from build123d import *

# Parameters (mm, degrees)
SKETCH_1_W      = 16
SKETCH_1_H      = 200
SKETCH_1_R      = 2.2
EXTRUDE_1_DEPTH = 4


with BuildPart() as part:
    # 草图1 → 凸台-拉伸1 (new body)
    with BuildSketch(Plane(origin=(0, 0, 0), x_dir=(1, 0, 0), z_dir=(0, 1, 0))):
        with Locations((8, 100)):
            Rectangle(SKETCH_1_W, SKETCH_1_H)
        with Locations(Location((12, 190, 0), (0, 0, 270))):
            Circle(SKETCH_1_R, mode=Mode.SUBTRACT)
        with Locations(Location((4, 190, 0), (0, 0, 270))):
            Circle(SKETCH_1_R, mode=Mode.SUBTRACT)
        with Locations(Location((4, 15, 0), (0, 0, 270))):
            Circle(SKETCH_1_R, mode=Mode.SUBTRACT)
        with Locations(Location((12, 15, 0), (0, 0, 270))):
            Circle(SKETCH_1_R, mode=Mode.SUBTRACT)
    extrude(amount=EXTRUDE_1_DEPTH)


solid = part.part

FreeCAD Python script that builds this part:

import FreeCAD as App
import Part
import Sketcher

V = App.Vector
Q = App.Units.Quantity


def add_polygon(sketch, points):
    """Adds a closed chain of lines whose ends are joined by coincident constraints."""
    first, n = sketch.GeometryCount, len(points)
    for a, b in zip(points, points[1:] + points[:1]):
        sketch.addGeometry(Part.LineSegment(App.Vector(*a, 0), App.Vector(*b, 0)), False)
    for i in range(n):
        sketch.addConstraint(Sketcher.Constraint("Coincident", first + i, 2, first + (i + 1) % n, 1))

doc = App.newDocument("Part")
body = doc.addObject("PartDesign::Body", "Body")

# Sketch on XZ plane
sketch1 = body.newObject("Sketcher::SketchObject", "Sketch")
sketch1.AttachmentSupport = (doc.getObject("XZ_Plane"), [""])
sketch1.MapMode = "FlatFace"
add_polygon(sketch1, [(0, -200), (0, 0), (16, 0), (16, -200)])  # lines 0-3
sketch1.addGeometry(Part.Circle(V(4, -15, 0), V(0, 0, 1), 2.2), False)  # 4
sketch1.addGeometry(Part.Circle(V(12, -15, 0), V(0, 0, 1), 2.2), False)  # 5
sketch1.addGeometry(Part.Circle(V(4, -190, 0), V(0, 0, 1), 2.2), False)  # 6
sketch1.addGeometry(Part.Circle(V(12, -190, 0), V(0, 0, 1), 2.2), False)  # 7
sketch1.addConstraint([
    Sketcher.Constraint("Vertical", 0),
    Sketcher.Constraint("Horizontal", 1),
    Sketcher.Constraint("Vertical", 2),
    Sketcher.Constraint("Horizontal", 3),
    Sketcher.Constraint("Coincident", 0, 2, -1, 1),
    Sketcher.Constraint("Equal", 4, 5),
    Sketcher.Constraint("Equal", 5, 6),
    Sketcher.Constraint("Equal", 6, 7),
    Sketcher.Constraint("Horizontal", 4, 3, 5, 3),
    Sketcher.Constraint("Horizontal", 6, 3, 7, 3),
    Sketcher.Constraint("Vertical", 4, 3, 6, 3),
    Sketcher.Constraint("Vertical", 5, 3, 7, 3),
    Sketcher.Constraint("Diameter", 4, Q("4.4 mm")),
    Sketcher.Constraint("DistanceX", 1, 1, 1, 2, Q("16 mm")),
    Sketcher.Constraint("DistanceY", 0, 1, 0, 2, Q("200 mm")),
    Sketcher.Constraint("DistanceX", -1, 1, 4, 3, Q("4 mm")),
    Sketcher.Constraint("DistanceY", 4, 3, -1, 1, Q("15 mm")),
    Sketcher.Constraint("DistanceX", -1, 1, 5, 3, Q("12 mm")),
    Sketcher.Constraint("DistanceY", 6, 3, -1, 1, Q("190 mm")),
])
pad1 = body.newObject("PartDesign::Pad", "Pad")
pad1.Profile = sketch1
pad1.Length = 4
pad1.Reversed = True

doc.recompute()
